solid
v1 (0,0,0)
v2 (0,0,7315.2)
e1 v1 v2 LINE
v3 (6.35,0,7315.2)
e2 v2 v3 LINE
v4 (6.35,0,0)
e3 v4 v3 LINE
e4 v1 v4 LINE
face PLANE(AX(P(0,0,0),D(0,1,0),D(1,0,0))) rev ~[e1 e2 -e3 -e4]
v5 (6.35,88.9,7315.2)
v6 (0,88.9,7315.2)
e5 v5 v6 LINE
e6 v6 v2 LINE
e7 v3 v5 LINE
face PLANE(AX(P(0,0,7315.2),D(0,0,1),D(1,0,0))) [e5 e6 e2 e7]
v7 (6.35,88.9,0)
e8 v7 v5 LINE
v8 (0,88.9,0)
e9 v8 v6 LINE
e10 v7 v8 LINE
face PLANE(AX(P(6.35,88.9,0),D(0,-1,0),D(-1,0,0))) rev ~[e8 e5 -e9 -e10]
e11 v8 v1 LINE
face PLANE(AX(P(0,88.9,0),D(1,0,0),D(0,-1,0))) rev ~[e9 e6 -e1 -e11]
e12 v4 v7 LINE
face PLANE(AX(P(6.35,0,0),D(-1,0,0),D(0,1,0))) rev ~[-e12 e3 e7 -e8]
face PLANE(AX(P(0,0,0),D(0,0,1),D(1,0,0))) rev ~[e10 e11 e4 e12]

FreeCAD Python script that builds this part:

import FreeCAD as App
import Part
import Sketcher
Q = App.Units.Quantity

doc = App.newDocument("Part")
body = doc.addObject("PartDesign::Body", "Body")

# Sketch on XY plane
sketch1 = body.newObject("Sketcher::SketchObject", "Sketch")
sketch1.AttachmentSupport = (doc.getObject("XY_Plane"), [""])
sketch1.MapMode = "FlatFace"
sketch1.addGeometry([
    Part.LineSegment(App.Vector(0, 88.9, 0), App.Vector(0, 0, 0)),
    Part.LineSegment(App.Vector(0, 0, 0), App.Vector(6.35, 0, 0)),
    Part.LineSegment(App.Vector(6.35, 0, 0), App.Vector(6.35, 88.9, 0)),
    Part.LineSegment(App.Vector(6.35, 88.9, 0), App.Vector(0, 88.9, 0)),
], False)
sketch1.addConstraint([
    Sketcher.Constraint("Coincident", 0, 2, 1, 1),
    Sketcher.Constraint("Coincident", 1, 2, 2, 1),
    Sketcher.Constraint("Coincident", 2, 2, 3, 1),
    Sketcher.Constraint("Coincident", 3, 2, 0, 1),
    Sketcher.Constraint("Vertical", 0),
    Sketcher.Constraint("Horizontal", 1),
    Sketcher.Constraint("Vertical", 2),
    Sketcher.Constraint("Horizontal", 3),
    Sketcher.Constraint("Coincident", 0, 2, -1, 1),
    Sketcher.Constraint("DistanceY", 0, 2, 0, 1, Q("3.5 in")),
    Sketcher.Constraint("DistanceX", 1, 1, 1, 2, Q("0.25 in")),
])
pad1 = body.newObject("PartDesign::Pad", "Pad")
pad1.Profile = sketch1
pad1.Length = Q("288 in")

doc.recompute()
